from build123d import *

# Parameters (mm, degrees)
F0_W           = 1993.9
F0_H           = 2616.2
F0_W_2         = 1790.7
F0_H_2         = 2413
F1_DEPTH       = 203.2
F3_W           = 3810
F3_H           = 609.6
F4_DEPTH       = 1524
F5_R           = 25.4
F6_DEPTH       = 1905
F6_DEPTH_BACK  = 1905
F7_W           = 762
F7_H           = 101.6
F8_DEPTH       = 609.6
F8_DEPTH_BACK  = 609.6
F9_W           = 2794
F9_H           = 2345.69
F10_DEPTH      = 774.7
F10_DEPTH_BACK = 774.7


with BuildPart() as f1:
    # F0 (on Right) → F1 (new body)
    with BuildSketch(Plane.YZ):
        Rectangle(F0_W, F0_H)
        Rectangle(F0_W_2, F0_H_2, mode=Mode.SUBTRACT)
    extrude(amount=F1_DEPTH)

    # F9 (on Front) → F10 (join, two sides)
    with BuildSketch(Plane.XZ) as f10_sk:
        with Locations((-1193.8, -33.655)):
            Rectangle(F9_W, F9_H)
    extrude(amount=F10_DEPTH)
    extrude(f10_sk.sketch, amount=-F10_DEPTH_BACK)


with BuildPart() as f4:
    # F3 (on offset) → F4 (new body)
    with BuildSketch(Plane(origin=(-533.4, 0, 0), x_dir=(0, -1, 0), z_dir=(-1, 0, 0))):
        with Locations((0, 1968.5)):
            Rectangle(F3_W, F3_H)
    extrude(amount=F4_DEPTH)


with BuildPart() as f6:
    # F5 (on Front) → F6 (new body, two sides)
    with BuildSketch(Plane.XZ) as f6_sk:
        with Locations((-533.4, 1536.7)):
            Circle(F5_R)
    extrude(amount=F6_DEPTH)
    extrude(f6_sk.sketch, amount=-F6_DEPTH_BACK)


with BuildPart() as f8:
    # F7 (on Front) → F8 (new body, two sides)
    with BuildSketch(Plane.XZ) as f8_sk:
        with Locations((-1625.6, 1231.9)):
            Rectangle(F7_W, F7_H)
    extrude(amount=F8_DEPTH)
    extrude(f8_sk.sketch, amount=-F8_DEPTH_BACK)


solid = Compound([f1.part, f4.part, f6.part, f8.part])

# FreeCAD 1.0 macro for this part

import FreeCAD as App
import Part
import Sketcher
Q = App.Units.Quantity


def add_polygon(sketch, points):
    """Adds a closed chain of lines whose ends are joined by coincident constraints."""
    first, n = sketch.GeometryCount, len(points)
    for a, b in zip(points, points[1:] + points[:1]):
        sketch.addGeometry(Part.LineSegment(App.Vector(*a, 0), App.Vector(*b, 0)), False)
    for i in range(n):
        sketch.addConstraint(Sketcher.Constraint("Coincident", first + i, 2, first + (i + 1) % n, 1))

doc = App.newDocument("Part")
params = doc.addObject("Spreadsheet::Sheet", "Params")
for row, (alias, value) in enumerate([
    ("sketch1_height", "103 in"),
    ("sketch1_height2", "95 in"),
    ("sketch1_width", "78.5 in"),
    ("sketch1_width2", "70.5 in"),
    ("pad1_length", "8 in"),
    ("sketch2_width", "110 in"),
    ("sketch2_height", "92.35 in"),
    ("pad2_length", "30.5 in"),
    ("pad2_length2", "30.5 in"),
    ("sketch3_width", "150 in"),
    ("sketch3_height", "24 in"),
    ("pad3_length", "60 in"),
    ("sketch4_diameter", "2 in"),
    ("pad4_length", "75 in"),
    ("pad4_length2", "75 in"),
    ("sketch5_width", "30 in"),
    ("sketch5_height", "4 in"),
    ("pad5_length", "24 in"),
    ("pad5_length2", "24 in"),
], start=1):
    params.set(f"A{row}", alias)
    params.set(f"B{row}", "=" + value)
    params.setAlias(f"B{row}", alias)

body = doc.addObject("PartDesign::Body", "Body")

sketch1 = body.newObject("Sketcher::SketchObject", "Sketch")
sketch1.AttachmentSupport = (doc.getObject("YZ_Plane"), [""])
sketch1.MapMode = "FlatFace"
add_polygon(sketch1, [(-997, 1308), (-997, -1308), (997, -1308), (997, 1308)])
add_polygon(sketch1, [(895, -1206), (-895, -1206), (-895, 1206), (895, 1206)])
sketch1.addConstraint([
    Sketcher.Constraint("Vertical", 0),
    Sketcher.Constraint("Horizontal", 1),
    Sketcher.Constraint("Vertical", 2),
    Sketcher.Constraint("Horizontal", 3),
    Sketcher.Constraint("Horizontal", 4),
    Sketcher.Constraint("Vertical", 5),
    Sketcher.Constraint("Horizontal", 6),
    Sketcher.Constraint("Vertical", 7),
    Sketcher.Constraint("Symmetric", 0, 2, 2, 2, -1, 1),
    Sketcher.Constraint("Symmetric", 4, 2, 6, 2, -1, 1),
    Sketcher.Constraint("DistanceY", 0, 2, 0, 1, Q("103 in")),
    Sketcher.Constraint("DistanceY", 5, 1, 5, 2, Q("95 in")),
    Sketcher.Constraint("DistanceX", 1, 1, 1, 2, Q("78.5 in")),
    Sketcher.Constraint("DistanceX", 4, 2, 4, 1, Q("70.5 in")),
])
sketch1.setExpression("Constraints[18]", "Params.sketch1_height")
sketch1.setExpression("Constraints[19]", "Params.sketch1_height2")
sketch1.setExpression("Constraints[20]", "Params.sketch1_width")
sketch1.setExpression("Constraints[21]", "Params.sketch1_width2")
pad1 = body.newObject("PartDesign::Pad", "Pad")
pad1.Profile = sketch1
pad1.setExpression("Length", "Params.pad1_length")

sketch2 = body.newObject("Sketcher::SketchObject", "Sketch001")
sketch2.AttachmentSupport = (doc.getObject("XZ_Plane"), [""])
sketch2.MapMode = "FlatFace"
add_polygon(sketch2, [(-2591, 1139), (-2591, -1206), (203, -1206), (203, 1139)])
sketch2.addConstraint([
    Sketcher.Constraint("Vertical", 0),
    Sketcher.Constraint("Horizontal", 1),
    Sketcher.Constraint("Vertical", 2),
    Sketcher.Constraint("Horizontal", 3),
    Sketcher.Constraint("DistanceX", 1, 1, 1, 2, Q("110 in")),
    Sketcher.Constraint("DistanceX", 0, 2, -1, 1, Q("102 in")),
    Sketcher.Constraint("DistanceY", 0, 2, 0, 1, Q("92.35 in")),
    Sketcher.Constraint("DistanceY", 0, 2, -1, 1, Q("47.5 in")),
])
sketch2.setExpression("Constraints[8]", "Params.sketch2_width")
sketch2.setExpression("Constraints[10]", "Params.sketch2_height")
pad2 = body.newObject("PartDesign::Pad", "Pad001")
pad2.Profile = sketch2
pad2.Type = "TwoLengths"
pad2.setExpression("Length", "Params.pad2_length")
pad2.setExpression("Length2", "Params.pad2_length2")
body2 = doc.addObject("PartDesign::Body", "Body001")

sketch3 = body2.newObject("Sketcher::SketchObject", "Sketch002")
sketch3.AttachmentSupport = (doc.getObject("YZ_Plane001"), [""])
sketch3.MapMode = "FlatFace"
sketch3.AttachmentOffset = App.Placement(App.Vector(0, 0, -21 * 25.4), App.Rotation())
add_polygon(sketch3, [(1905, 2273), (1905, 1664), (-1905, 1664), (-1905, 2273)])
sketch3.addConstraint([
    Sketcher.Constraint("Vertical", 0),
    Sketcher.Constraint("Horizontal", 1),
    Sketcher.Constraint("Vertical", 2),
    Sketcher.Constraint("Horizontal", 3),
    Sketcher.Constraint("DistanceX", 1, 2, 1, 1, Q("150 in")),
    Sketcher.Constraint("DistanceY", 0, 2, 0, 1, Q("24 in")),
    Sketcher.Constraint("DistanceX", -1, 1, 0, 2, Q("75 in")),
    Sketcher.Constraint("DistanceY", -1, 1, 0, 2, Q("65.5 in")),
])
sketch3.setExpression("Constraints[8]", "Params.sketch3_width")
sketch3.setExpression("Constraints[9]", "Params.sketch3_height")
pad3 = body2.newObject("PartDesign::Pad", "Pad002")
pad3.Profile = sketch3
pad3.setExpression("Length", "Params.pad3_length")
pad3.Reversed = True
body3 = doc.addObject("PartDesign::Body", "Body002")

sketch4 = body3.newObject("Sketcher::SketchObject", "Sketch003")
sketch4.AttachmentSupport = (doc.getObject("XZ_Plane002"), [""])
sketch4.MapMode = "FlatFace"
sketch4.addGeometry(Part.Circle(App.Vector(-533, 1537, 0), App.Vector(0, 0, 1), 25), False)
sketch4.addConstraint([
    Sketcher.Constraint("Diameter", 0, Q("2 in")),
    Sketcher.Constraint("DistanceX", 0, 3, -1, 1, Q("21 in")),
    Sketcher.Constraint("DistanceY", -1, 1, 0, 3, Q("60.5 in")),
])
sketch4.setExpression("Constraints[0]", "Params.sketch4_diameter")
pad4 = body3.newObject("PartDesign::Pad", "Pad003")
pad4.Profile = sketch4
pad4.Type = "TwoLengths"
pad4.setExpression("Length", "Params.pad4_length")
pad4.setExpression("Length2", "Params.pad4_length2")
body4 = doc.addObject("PartDesign::Body", "Body003")

sketch5 = body4.newObject("Sketcher::SketchObject", "Sketch004")
sketch5.AttachmentSupport = (doc.getObject("XZ_Plane003"), [""])
sketch5.MapMode = "FlatFace"
add_polygon(sketch5, [(-2007, 1283), (-2007, 1181), (-1245, 1181), (-1245, 1283)])
sketch5.addConstraint([
    Sketcher.Constraint("Vertical", 0),
    Sketcher.Constraint("Horizontal", 1),
    Sketcher.Constraint("Vertical", 2),
    Sketcher.Constraint("Horizontal", 3),
    Sketcher.Constraint("DistanceX", 1, 1, 1, 2, Q("30 in")),
    Sketcher.Constraint("DistanceY", 0, 2, 0, 1, Q("4 in")),
    Sketcher.Constraint("DistanceX", 0, 2, -1, 1, Q("79 in")),
    Sketcher.Constraint("DistanceY", -1, 1, 0, 2, Q("46.5 in")),
])
sketch5.setExpression("Constraints[8]", "Params.sketch5_width")
sketch5.setExpression("Constraints[9]", "Params.sketch5_height")
pad5 = body4.newObject("PartDesign::Pad", "Pad004")
pad5.Profile = sketch5
pad5.Type = "TwoLengths"
pad5.setExpression("Length", "Params.pad5_length")
pad5.setExpression("Length2", "Params.pad5_length2")

doc.recompute()
